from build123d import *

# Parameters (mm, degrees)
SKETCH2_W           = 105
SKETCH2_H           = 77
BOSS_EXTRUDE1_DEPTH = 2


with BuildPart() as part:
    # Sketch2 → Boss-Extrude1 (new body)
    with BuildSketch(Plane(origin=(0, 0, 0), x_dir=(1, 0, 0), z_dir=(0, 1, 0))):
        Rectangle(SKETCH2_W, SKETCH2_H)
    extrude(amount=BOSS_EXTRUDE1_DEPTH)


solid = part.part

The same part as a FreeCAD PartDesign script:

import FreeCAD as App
import Part
import Sketcher
Q = App.Units.Quantity


def add_polygon(sketch, points):
    """Adds a closed chain of lines whose ends are joined by coincident constraints."""
    first, n = sketch.GeometryCount, len(points)
    for a, b in zip(points, points[1:] + points[:1]):
        sketch.addGeometry(Part.LineSegment(App.Vector(*a, 0), App.Vector(*b, 0)), False)
    for i in range(n):
        sketch.addConstraint(Sketcher.Constraint("Coincident", first + i, 2, first + (i + 1) % n, 1))

doc = App.newDocument("Part")
params = doc.addObject("Spreadsheet::Sheet", "Params")
for row, (alias, value) in enumerate([
    ("sketch1_width", "105 mm"),
    ("sketch1_height", "77 mm"),
    ("pad1_length", "2 mm"),
], start=1):
    params.set(f"A{row}", alias)
    params.set(f"B{row}", "=" + value)
    params.setAlias(f"B{row}", alias)

body = doc.addObject("PartDesign::Body", "Body")

sketch1 = body.newObject("Sketcher::SketchObject", "Sketch")
sketch1.AttachmentSupport = (doc.getObject("XZ_Plane"), [""])
sketch1.MapMode = "FlatFace"
add_polygon(sketch1, [(-52, -38), (-52, 38), (52, 38), (52, -38)])
sketch1.addConstraint([
    Sketcher.Constraint("Vertical", 0),
    Sketcher.Constraint("Horizontal", 1),
    Sketcher.Constraint("Vertical", 2),
    Sketcher.Constraint("Horizontal", 3),
    Sketcher.Constraint("Symmetric", 0, 2, 2, 2, -1, 1),
    Sketcher.Constraint("DistanceX", 1, 1, 1, 2, Q("105 mm")),
    Sketcher.Constraint("DistanceY", 0, 1, 0, 2, Q("77 mm")),
])
sketch1.setExpression("Constraints[9]", "Params.sketch1_width")
sketch1.setExpression("Constraints[10]", "Params.sketch1_height")
pad1 = body.newObject("PartDesign::Pad", "Pad")
pad1.Profile = sketch1
pad1.setExpression("Length", "Params.pad1_length")
pad1.Reversed = True

doc.recompute()
